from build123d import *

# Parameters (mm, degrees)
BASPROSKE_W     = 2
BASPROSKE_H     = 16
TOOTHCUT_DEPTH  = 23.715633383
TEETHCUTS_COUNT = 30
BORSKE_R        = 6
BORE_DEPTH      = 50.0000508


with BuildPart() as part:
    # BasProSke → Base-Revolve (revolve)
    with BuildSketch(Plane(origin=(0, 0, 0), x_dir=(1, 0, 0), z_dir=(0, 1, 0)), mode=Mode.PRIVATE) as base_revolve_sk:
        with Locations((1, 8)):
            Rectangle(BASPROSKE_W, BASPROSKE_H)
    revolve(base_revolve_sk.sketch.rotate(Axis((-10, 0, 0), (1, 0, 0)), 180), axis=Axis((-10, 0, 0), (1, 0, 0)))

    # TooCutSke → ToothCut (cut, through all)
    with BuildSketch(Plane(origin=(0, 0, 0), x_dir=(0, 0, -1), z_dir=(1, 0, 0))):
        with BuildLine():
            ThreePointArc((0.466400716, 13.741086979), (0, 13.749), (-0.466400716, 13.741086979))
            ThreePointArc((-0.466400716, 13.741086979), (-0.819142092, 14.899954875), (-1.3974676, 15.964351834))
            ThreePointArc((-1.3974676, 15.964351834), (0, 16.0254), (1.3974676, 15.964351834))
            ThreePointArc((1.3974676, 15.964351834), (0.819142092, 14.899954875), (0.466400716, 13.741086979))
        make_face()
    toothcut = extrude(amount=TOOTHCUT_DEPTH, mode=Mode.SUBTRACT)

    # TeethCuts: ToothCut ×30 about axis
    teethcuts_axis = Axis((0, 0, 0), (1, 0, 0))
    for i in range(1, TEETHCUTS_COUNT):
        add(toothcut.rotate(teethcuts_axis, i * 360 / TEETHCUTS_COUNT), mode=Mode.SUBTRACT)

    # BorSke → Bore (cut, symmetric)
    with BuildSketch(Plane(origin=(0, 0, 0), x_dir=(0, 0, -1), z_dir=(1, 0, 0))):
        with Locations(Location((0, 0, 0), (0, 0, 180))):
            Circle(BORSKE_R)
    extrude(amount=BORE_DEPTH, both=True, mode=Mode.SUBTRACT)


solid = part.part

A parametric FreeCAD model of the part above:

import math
import FreeCAD as App
import Part
import Sketcher

V = App.Vector
Q = App.Units.Quantity


def add_polygon(sketch, points):
    """Adds a closed chain of lines whose ends are joined by coincident constraints."""
    first, n = sketch.GeometryCount, len(points)
    for a, b in zip(points, points[1:] + points[:1]):
        sketch.addGeometry(Part.LineSegment(App.Vector(*a, 0), App.Vector(*b, 0)), False)
    for i in range(n):
        sketch.addConstraint(Sketcher.Constraint("Coincident", first + i, 2, first + (i + 1) % n, 1))

doc = App.newDocument("Part")
body = doc.addObject("PartDesign::Body", "Body")

sketch1 = body.newObject("Sketcher::SketchObject", "Sketch")
sketch1.AttachmentSupport = (doc.getObject("XZ_Plane"), [""])
sketch1.MapMode = "FlatFace"
add_polygon(sketch1, [(0, -16), (0, 0), (2, 0), (2, -16)])
sketch1.addConstraint([
    Sketcher.Constraint("Vertical", 0),
    Sketcher.Constraint("Horizontal", 1),
    Sketcher.Constraint("Vertical", 2),
    Sketcher.Constraint("Horizontal", 3),
    Sketcher.Constraint("Coincident", 0, 2, -1, 1),
    Sketcher.Constraint("DistanceX", 1, 1, 1, 2, Q("2 mm")),
    Sketcher.Constraint("DistanceY", 0, 1, 0, 2, Q("16 mm")),
])
revolution = body.newObject("PartDesign::Revolution", "Revolution")
revolution.Profile = sketch1
revolution.ReferenceAxis = (sketch1, ["H_Axis"])
revolution.Angle = 360

sketch2 = body.newObject("Sketcher::SketchObject", "Sketch001")
sketch2.AttachmentSupport = (doc.getObject("YZ_Plane"), [""])
sketch2.MapMode = "FlatFace"
sketch2.addGeometry([
    Part.ArcOfCircle(Part.Circle(V(0, 0, 0), V(0, 0, 1), 13.7), math.radians(-1.94), math.radians(1.94)),
    Part.ArcOfCircle(Part.Circle(V(12.6, -6.4, 0), V(0, 0, 1), 6), math.radians(56), math.radians(79)),
    Part.ArcOfCircle(Part.Circle(V(0, 0, 0), V(0, 0, 1), 16), math.radians(-5), math.radians(5)),
    Part.ArcOfCircle(Part.Circle(V(12.6, 6.4, 0), V(0, 0, 1), 6), math.radians(-79), math.radians(-56)),
], False)
sketch2.addConstraint([
    Sketcher.Constraint("Coincident", 0, 1, 1, 2),
    Sketcher.Constraint("Coincident", 1, 1, 2, 1),
    Sketcher.Constraint("Coincident", 2, 2, 3, 2),
    Sketcher.Constraint("Coincident", 3, 1, 0, 2),
    Sketcher.Constraint("Coincident", 0, 3, -1, 1),
    Sketcher.Constraint("Coincident", 2, 3, -1, 1),
    Sketcher.Constraint("Equal", 1, 3),
    Sketcher.Constraint("Symmetric", 1, 3, 3, 3, -1),
    Sketcher.Constraint("Radius", 1, Q("6 mm")),
    Sketcher.Constraint("Radius", 0, Q("13.749 mm")),
    Sketcher.Constraint("Radius", 2, Q("16.0254 mm")),
    Sketcher.Constraint("DistanceY", 0, 1, -1, 1, Q("0.466401 mm")),
    Sketcher.Constraint("DistanceX", -1, 1, 1, 1, Q("15.964352 mm")),
])
pocket1 = body.newObject("PartDesign::Pocket", "Pocket")
pocket1.Profile = sketch2
pocket1.Type = "ThroughAll"
pocket1.Reversed = True
doc.recompute()

polarpattern = body.newObject("PartDesign::PolarPattern", "PolarPattern")
polarpattern.Originals = [pocket1]
polarpattern.Axis = (doc.getObject("X_Axis"), [""])
polarpattern.Angle = 360
polarpattern.Occurrences = 30
body.Tip = polarpattern

sketch3 = body.newObject("Sketcher::SketchObject", "Sketch002")
sketch3.AttachmentSupport = (doc.getObject("YZ_Plane"), [""])
sketch3.MapMode = "FlatFace"
sketch3.addGeometry(Part.Circle(V(0, 0, 0), V(0, 0, 1), 6), False)
sketch3.addConstraint([
    Sketcher.Constraint("Coincident", 0, 3, -1, 1),
    Sketcher.Constraint("Diameter", 0, Q("12 mm")),
])
pocket2 = body.newObject("PartDesign::Pocket", "Pocket001")
pocket2.Profile = sketch3
pocket2.Length = 100.000102
pocket2.Midplane = True

doc.recompute()
